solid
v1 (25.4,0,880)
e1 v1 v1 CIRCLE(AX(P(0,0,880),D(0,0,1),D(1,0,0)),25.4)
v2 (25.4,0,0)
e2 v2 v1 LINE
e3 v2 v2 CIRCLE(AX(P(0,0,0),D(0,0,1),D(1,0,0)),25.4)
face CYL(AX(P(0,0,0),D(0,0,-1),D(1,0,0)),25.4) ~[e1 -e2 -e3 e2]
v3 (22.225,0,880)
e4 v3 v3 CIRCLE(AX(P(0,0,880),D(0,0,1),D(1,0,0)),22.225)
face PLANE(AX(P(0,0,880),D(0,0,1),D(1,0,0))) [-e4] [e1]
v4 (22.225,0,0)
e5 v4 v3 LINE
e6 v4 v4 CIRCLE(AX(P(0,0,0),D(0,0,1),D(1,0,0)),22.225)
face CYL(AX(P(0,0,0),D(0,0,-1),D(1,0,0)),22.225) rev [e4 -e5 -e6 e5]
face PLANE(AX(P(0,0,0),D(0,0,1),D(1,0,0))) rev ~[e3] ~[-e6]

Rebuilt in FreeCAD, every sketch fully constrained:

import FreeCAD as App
import Part
import Sketcher
Q = App.Units.Quantity

doc = App.newDocument("Part")
params = doc.addObject("Spreadsheet::Sheet", "Params")
for row, (alias, value) in enumerate([
    ("sketch1_diameter", "2 in"),
    ("sketch1_diameter2", "1.75 in"),
    ("pad1_length", "880 mm"),
], start=1):
    params.set(f"A{row}", alias)
    params.set(f"B{row}", "=" + value)
    params.setAlias(f"B{row}", alias)

body = doc.addObject("PartDesign::Body", "Body")

# Sketch on XY plane
sketch1 = doc.addObject("Sketcher::SketchObject", "Sketch")
body.addObject(sketch1)
sketch1.AttachmentSupport = (doc.XY_Plane, [""])
sketch1.MapMode = "FlatFace"
sketch1.addGeometry([
    Part.Circle(App.Vector(0, 0, 0), App.Vector(0, 0, 1), 25),
    Part.Circle(App.Vector(0, 0, 0), App.Vector(0, 0, 1), 22),
], False)
sketch1.addConstraint([
    Sketcher.Constraint("Coincident", 0, 3, -1, 1),
    Sketcher.Constraint("Coincident", 1, 3, -1, 1),
    Sketcher.Constraint("Diameter", 0, Q("2 in")),
    Sketcher.Constraint("Diameter", 1, Q("1.75 in")),
])
sketch1.setExpression("Constraints[2]", "Params.sketch1_diameter")
sketch1.setExpression("Constraints[3]", "Params.sketch1_diameter2")
pad1 = doc.addObject("PartDesign::Pad", "Pad")
body.addObject(pad1)
pad1.Profile = sketch1
pad1.setExpression("Length", "Params.pad1_length")

doc.recompute()
